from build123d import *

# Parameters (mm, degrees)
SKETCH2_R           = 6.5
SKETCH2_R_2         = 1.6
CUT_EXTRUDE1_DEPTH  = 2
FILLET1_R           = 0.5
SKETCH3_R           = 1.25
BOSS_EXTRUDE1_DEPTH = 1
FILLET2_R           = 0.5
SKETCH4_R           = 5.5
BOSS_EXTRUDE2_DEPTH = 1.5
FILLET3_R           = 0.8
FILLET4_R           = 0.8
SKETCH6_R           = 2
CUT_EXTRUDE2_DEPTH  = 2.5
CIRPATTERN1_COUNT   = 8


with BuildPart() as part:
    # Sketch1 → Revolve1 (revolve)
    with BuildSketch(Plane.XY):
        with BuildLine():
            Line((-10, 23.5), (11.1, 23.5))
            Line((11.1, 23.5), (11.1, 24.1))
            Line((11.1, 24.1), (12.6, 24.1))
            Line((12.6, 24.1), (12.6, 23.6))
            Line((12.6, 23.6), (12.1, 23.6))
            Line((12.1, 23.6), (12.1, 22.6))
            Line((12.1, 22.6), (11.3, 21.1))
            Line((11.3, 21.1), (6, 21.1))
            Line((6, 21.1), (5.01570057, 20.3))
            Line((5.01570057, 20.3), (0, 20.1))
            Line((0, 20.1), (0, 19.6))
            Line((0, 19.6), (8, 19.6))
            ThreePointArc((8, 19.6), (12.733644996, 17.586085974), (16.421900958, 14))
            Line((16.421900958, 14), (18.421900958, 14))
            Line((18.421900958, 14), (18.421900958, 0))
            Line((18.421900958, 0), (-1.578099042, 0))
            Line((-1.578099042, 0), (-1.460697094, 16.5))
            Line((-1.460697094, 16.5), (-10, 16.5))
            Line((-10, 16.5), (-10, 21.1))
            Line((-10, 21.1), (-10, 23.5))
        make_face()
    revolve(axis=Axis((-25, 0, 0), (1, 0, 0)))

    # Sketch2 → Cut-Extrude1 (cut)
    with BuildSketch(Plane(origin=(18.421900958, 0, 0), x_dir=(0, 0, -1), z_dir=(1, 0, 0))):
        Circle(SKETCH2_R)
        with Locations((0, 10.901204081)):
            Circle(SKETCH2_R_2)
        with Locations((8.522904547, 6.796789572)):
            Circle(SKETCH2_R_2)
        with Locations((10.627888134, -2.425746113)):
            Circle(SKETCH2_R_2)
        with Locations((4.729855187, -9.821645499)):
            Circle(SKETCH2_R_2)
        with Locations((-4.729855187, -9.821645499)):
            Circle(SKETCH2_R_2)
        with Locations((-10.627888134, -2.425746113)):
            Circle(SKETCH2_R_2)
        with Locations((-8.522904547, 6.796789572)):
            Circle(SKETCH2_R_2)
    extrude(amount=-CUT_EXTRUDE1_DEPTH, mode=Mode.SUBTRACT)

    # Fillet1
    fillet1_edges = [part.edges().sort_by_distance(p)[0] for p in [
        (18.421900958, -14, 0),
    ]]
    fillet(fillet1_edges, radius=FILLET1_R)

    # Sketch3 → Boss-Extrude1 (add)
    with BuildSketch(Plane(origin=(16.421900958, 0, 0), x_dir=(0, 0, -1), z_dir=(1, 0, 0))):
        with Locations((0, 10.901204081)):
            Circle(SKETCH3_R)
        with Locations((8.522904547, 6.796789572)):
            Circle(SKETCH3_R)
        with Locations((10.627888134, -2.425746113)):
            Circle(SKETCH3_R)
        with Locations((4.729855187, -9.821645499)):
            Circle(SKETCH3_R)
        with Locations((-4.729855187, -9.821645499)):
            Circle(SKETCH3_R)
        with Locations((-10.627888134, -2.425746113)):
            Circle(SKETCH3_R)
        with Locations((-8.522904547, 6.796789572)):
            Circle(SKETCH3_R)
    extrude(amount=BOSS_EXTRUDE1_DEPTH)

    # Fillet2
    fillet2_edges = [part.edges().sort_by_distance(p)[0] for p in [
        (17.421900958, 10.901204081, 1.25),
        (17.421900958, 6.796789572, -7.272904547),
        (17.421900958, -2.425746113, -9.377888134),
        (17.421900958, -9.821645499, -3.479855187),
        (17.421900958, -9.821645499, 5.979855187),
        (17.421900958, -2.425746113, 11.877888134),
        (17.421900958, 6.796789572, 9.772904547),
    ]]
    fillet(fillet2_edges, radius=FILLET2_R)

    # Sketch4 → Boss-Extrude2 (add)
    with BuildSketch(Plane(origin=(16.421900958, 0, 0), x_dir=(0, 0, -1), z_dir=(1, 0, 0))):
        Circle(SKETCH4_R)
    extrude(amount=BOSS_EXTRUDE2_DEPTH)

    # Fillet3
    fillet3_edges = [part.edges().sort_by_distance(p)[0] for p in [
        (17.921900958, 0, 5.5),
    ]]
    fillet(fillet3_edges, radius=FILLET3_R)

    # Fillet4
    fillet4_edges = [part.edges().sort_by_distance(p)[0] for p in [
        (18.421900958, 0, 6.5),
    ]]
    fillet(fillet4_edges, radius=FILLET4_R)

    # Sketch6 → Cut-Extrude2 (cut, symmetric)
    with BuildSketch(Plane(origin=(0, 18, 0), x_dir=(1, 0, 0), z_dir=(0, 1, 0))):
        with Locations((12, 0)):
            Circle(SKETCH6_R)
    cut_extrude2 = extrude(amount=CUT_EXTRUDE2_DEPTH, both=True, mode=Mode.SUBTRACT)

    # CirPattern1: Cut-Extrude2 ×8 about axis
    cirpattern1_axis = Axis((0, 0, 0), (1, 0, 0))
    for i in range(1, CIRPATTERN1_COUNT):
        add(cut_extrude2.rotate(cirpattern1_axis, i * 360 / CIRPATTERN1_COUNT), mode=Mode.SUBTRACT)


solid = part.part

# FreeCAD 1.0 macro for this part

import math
import FreeCAD as App
import Part
import Sketcher

V = App.Vector


def edges_at(feature, points):
    """Names of the edges that pass closest to the given points."""
    edges = feature.Shape.Edges
    near = lambda p: min(range(len(edges)), key=lambda i: edges[i].distToShape(Part.Vertex(*p))[0])
    return sorted({f"Edge{near(p) + 1}" for p in points})

doc = App.newDocument("Part")
params = doc.addObject("Spreadsheet::Sheet", "Params")
for row, (alias, value) in enumerate([
    ("sketch1_width", "20 mm"),
    ("sketch1_width2", "2 mm"),
    ("sketch1_width3", "8 mm"),
    ("sketch1_height", "7 mm"),
    ("sketch1_height2", "14 mm"),
    ("revolution_angle", "360 deg"),
    ("sketch2_diameter", "13 mm"),
    ("sketch2_diameter2", "3.2 mm"),
    ("pocket1_length", "2 mm"),
    ("fillet_radius", "0.5 mm"),
    ("sketch3_diameter", "2.5 mm"),
    ("pad1_length", "1 mm"),
    ("fillet2_radius", "0.5 mm"),
    ("sketch4_diameter", "11 mm"),
    ("pad2_length", "1.5 mm"),
    ("fillet3_radius", "0.8 mm"),
    ("fillet4_radius", "0.8 mm"),
    ("sketch5_diameter", "4 mm"),
    ("pocket2_length", "5 mm"),
], start=1):
    params.set(f"A{row}", alias)
    params.set(f"B{row}", "=" + value)
    params.setAlias(f"B{row}", alias)

body = doc.addObject("PartDesign::Body", "Body")

sketch1 = body.newObject("Sketcher::SketchObject", "Sketch")
sketch1.AttachmentSupport = (doc.getObject("XY_Plane"), [""])
sketch1.MapMode = "FlatFace"
sketch1.addGeometry(Part.LineSegment(V(11.1, 23.5, 0), V(-10, 23.5, 0)), False)
sketch1.addGeometry(Part.LineSegment(V(-10, 23.5, 0), V(-10, 16.5, 0)), False)
sketch1.addGeometry(Part.LineSegment(V(-10, 16.5, 0), V(-1.460697, 16.5, 0)), False)
sketch1.addGeometry(Part.LineSegment(V(-1.460697, 16.5, 0), V(-1.578099, 0, 0)), False)
sketch1.addGeometry(Part.LineSegment(V(-1.578099, 0, 0), V(18.421901, 0, 0)), False)
sketch1.addGeometry(Part.LineSegment(V(18.421901, 0, 0), V(18.421901, 14, 0)), False)
sketch1.addGeometry(Part.LineSegment(V(18.421901, 14, 0), V(16.421901, 14, 0)), False)
sketch1.addGeometry(Part.ArcOfCircle(Part.Circle(V(4.972697, 5.914312, 0), V(0, 0, 1), 14.016512), math.radians(35.230607), math.radians(77.526903)), False)
sketch1.addGeometry(Part.LineSegment(V(8, 19.6, 0), V(0, 19.6, 0)), False)
sketch1.addGeometry(Part.LineSegment(V(0, 19.6, 0), V(0, 20.1, 0)), False)
sketch1.addGeometry(Part.LineSegment(V(0, 20.1, 0), V(5.015701, 20.3, 0)), False)
sketch1.addGeometry(Part.LineSegment(V(5.015701, 20.3, 0), V(6, 21.1, 0)), False)
sketch1.addGeometry(Part.LineSegment(V(6, 21.1, 0), V(11.3, 21.1, 0)), False)
sketch1.addGeometry(Part.LineSegment(V(11.3, 21.1, 0), V(12.1, 22.6, 0)), False)
sketch1.addGeometry(Part.LineSegment(V(12.1, 22.6, 0), V(12.1, 23.6, 0)), False)
sketch1.addGeometry(Part.LineSegment(V(12.1, 23.6, 0), V(12.6, 23.6, 0)), False)
sketch1.addGeometry(Part.LineSegment(V(12.6, 23.6, 0), V(12.6, 24.1, 0)), False)
sketch1.addGeometry(Part.LineSegment(V(12.6, 24.1, 0), V(11.1, 24.1, 0)), False)
sketch1.addGeometry(Part.LineSegment(V(11.1, 24.1, 0), V(11.1, 23.5, 0)), False)
sketch1.addConstraint(Sketcher.Constraint("Coincident", 0, 2, 1, 1))
sketch1.addConstraint(Sketcher.Constraint("Coincident", 1, 2, 2, 1))
sketch1.addConstraint(Sketcher.Constraint("Coincident", 2, 2, 3, 1))
sketch1.addConstraint(Sketcher.Constraint("Coincident", 3, 2, 4, 1))
sketch1.addConstraint(Sketcher.Constraint("Coincident", 4, 2, 5, 1))
sketch1.addConstraint(Sketcher.Constraint("Coincident", 5, 2, 6, 1))
sketch1.addConstraint(Sketcher.Constraint("Coincident", 6, 2, 7, 1))
sketch1.addConstraint(Sketcher.Constraint("Coincident", 7, 2, 8, 1))
sketch1.addConstraint(Sketcher.Constraint("Coincident", 8, 2, 9, 1))
sketch1.addConstraint(Sketcher.Constraint("Coincident", 9, 2, 10, 1))
sketch1.addConstraint(Sketcher.Constraint("Coincident", 10, 2, 11, 1))
sketch1.addConstraint(Sketcher.Constraint("Coincident", 11, 2, 12, 1))
sketch1.addConstraint(Sketcher.Constraint("Coincident", 12, 2, 13, 1))
sketch1.addConstraint(Sketcher.Constraint("Coincident", 13, 2, 14, 1))
sketch1.addConstraint(Sketcher.Constraint("Coincident", 14, 2, 15, 1))
sketch1.addConstraint(Sketcher.Constraint("Coincident", 15, 2, 16, 1))
sketch1.addConstraint(Sketcher.Constraint("Coincident", 16, 2, 17, 1))
sketch1.addConstraint(Sketcher.Constraint("Coincident", 17, 2, 18, 1))
sketch1.addConstraint(Sketcher.Constraint("Coincident", 18, 2, 0, 1))
sketch1.addConstraint(Sketcher.Constraint("Horizontal", 0))
sketch1.addConstraint(Sketcher.Constraint("Vertical", 1))
sketch1.addConstraint(Sketcher.Constraint("Horizontal", 2))
sketch1.addConstraint(Sketcher.Constraint("Horizontal", 4))
sketch1.addConstraint(Sketcher.Constraint("Vertical", 5))
sketch1.addConstraint(Sketcher.Constraint("Horizontal", 6))
sketch1.addConstraint(Sketcher.Constraint("Horizontal", 8))
sketch1.addConstraint(Sketcher.Constraint("Vertical", 9))
sketch1.addConstraint(Sketcher.Constraint("Horizontal", 12))
sketch1.addConstraint(Sketcher.Constraint("Vertical", 14))
sketch1.addConstraint(Sketcher.Constraint("Horizontal", 15))
sketch1.addConstraint(Sketcher.Constraint("Vertical", 16))
sketch1.addConstraint(Sketcher.Constraint("Horizontal", 17))
sketch1.addConstraint(Sketcher.Constraint("Vertical", 18))
sketch1.addConstraint(Sketcher.Constraint("PointOnObject", 3, 2, -1))
sketch1.addConstraint(Sketcher.Constraint("PointOnObject", 8, 2, -2))
sketch1.addConstraint(Sketcher.Constraint("Equal", 15, 9))
sketch1.addConstraint(Sketcher.Constraint("Equal", 9, 16))
sketch1.addConstraint(Sketcher.Constraint("DistanceX", 4, 1, 4, 2, 20.0))
sketch1.addConstraint(Sketcher.Constraint("DistanceX", 6, 2, 6, 1, 2.0))
sketch1.addConstraint(Sketcher.Constraint("DistanceX", 8, 2, 8, 1, 8.0))
sketch1.addConstraint(Sketcher.Constraint("DistanceY", 1, 2, 1, 1, 7.0))
sketch1.addConstraint(Sketcher.Constraint("DistanceY", 5, 1, 5, 2, 14.0))
sketch1.addConstraint(Sketcher.Constraint("DistanceY", 14, 1, 14, 2, 1.0))
sketch1.addConstraint(Sketcher.Constraint("DistanceX", 0, 2, 0, 1, 21.1))
sketch1.addConstraint(Sketcher.Constraint("DistanceX", 12, 1, 12, 2, 5.3))
sketch1.addConstraint(Sketcher.Constraint("DistanceX", 15, 1, 15, 2, 0.5))
sketch1.addConstraint(Sketcher.Constraint("DistanceX", 17, 2, 17, 1, 1.5))
sketch1.addConstraint(Sketcher.Constraint("DistanceY", 18, 2, 18, 1, 0.6))
sketch1.addConstraint(Sketcher.Constraint("DistanceX", 0, 2, -1, 1, 10.0))
sketch1.addConstraint(Sketcher.Constraint("DistanceX", -1, 1, 11, 2, 6.0))
sketch1.addConstraint(Sketcher.Constraint("DistanceY", 9, 2, 11, 2, 1.0))
sketch1.addConstraint(Sketcher.Constraint("DistanceY", 7, 2, 13, 2, 3.0))
sketch1.addConstraint(Sketcher.Constraint("DistanceY", -1, 1, 0, 2, 23.5))
sketch1.addConstraint(Sketcher.Constraint("DistanceY", -1, 1, 10, 2, 20.3))
sketch1.addConstraint(Sketcher.Constraint("Radius", 7, 14.016512))
sketch1.addConstraint(Sketcher.Constraint("DistanceX", 3, 2, -1, 1, 1.578099))
sketch1.addConstraint(Sketcher.Constraint("DistanceX", -1, 1, 10, 2, 5.015701))
sketch1.addConstraint(Sketcher.Constraint("DistanceX", 3, 2, 2, 2, 0.117402))
sketch1.setExpression("Constraints[37]", "Params.sketch1_width")
sketch1.setExpression("Constraints[38]", "Params.sketch1_width2")
sketch1.setExpression("Constraints[39]", "Params.sketch1_width3")
sketch1.setExpression("Constraints[40]", "Params.sketch1_height")
sketch1.setExpression("Constraints[41]", "Params.sketch1_height2")
revolution = body.newObject("PartDesign::Revolution", "Revolution")
revolution.Profile = sketch1
revolution.ReferenceAxis = (sketch1, ["H_Axis"])
revolution.setExpression("Angle", "Params.revolution_angle")

sketch2 = body.newObject("Sketcher::SketchObject", "Sketch001")
sketch2.AttachmentSupport = (doc.getObject("YZ_Plane"), [""])
sketch2.MapMode = "FlatFace"
sketch2.AttachmentOffset = App.Placement(V(0, 0, 18.421901), App.Rotation())
sketch2.addGeometry(Part.Circle(V(0, 0, 0), V(0, 0, 1), 6.5), False)
sketch2.addGeometry(Part.Circle(V(10.901204, 0, 0), V(0, 0, 1), 1.6), False)
sketch2.addGeometry(Part.Circle(V(6.79679, -8.522905, 0), V(0, 0, 1), 1.6), False)
sketch2.addGeometry(Part.Circle(V(-2.425746, -10.627888, 0), V(0, 0, 1), 1.6), False)
sketch2.addGeometry(Part.Circle(V(-9.821645, -4.729855, 0), V(0, 0, 1), 1.6), False)
sketch2.addGeometry(Part.Circle(V(-9.821645, 4.729855, 0), V(0, 0, 1), 1.6), False)
sketch2.addGeometry(Part.Circle(V(-2.425746, 10.627888, 0), V(0, 0, 1), 1.6), False)
sketch2.addGeometry(Part.Circle(V(6.79679, 8.522905, 0), V(0, 0, 1), 1.6), False)
sketch2.addConstraint(Sketcher.Constraint("Coincident", 0, 3, -1, 1))
sketch2.addConstraint(Sketcher.Constraint("Equal", 1, 2))
sketch2.addConstraint(Sketcher.Constraint("Equal", 2, 3))
sketch2.addConstraint(Sketcher.Constraint("Equal", 3, 4))
sketch2.addConstraint(Sketcher.Constraint("Equal", 4, 5))
sketch2.addConstraint(Sketcher.Constraint("Equal", 5, 6))
sketch2.addConstraint(Sketcher.Constraint("Equal", 6, 7))
sketch2.addConstraint(Sketcher.Constraint("Symmetric", 4, 3, 5, 3, -1))
sketch2.addConstraint(Sketcher.Constraint("Symmetric", 3, 3, 6, 3, -1))
sketch2.addConstraint(Sketcher.Constraint("Symmetric", 2, 3, 7, 3, -1))
sketch2.addConstraint(Sketcher.Constraint("PointOnObject", 1, 3, -1))
sketch2.addConstraint(Sketcher.Constraint("Diameter", 0, 13.0))
sketch2.addConstraint(Sketcher.Constraint("Diameter", 1, 3.2))
sketch2.addConstraint(Sketcher.Constraint("DistanceX", 4, 3, 3, 3, 7.395899))
sketch2.addConstraint(Sketcher.Constraint("DistanceX", -1, 1, 2, 3, 6.79679))
sketch2.addConstraint(Sketcher.Constraint("DistanceY", 3, 3, -1, 1, 10.627888))
sketch2.addConstraint(Sketcher.Constraint("DistanceX", 3, 3, 1, 3, 13.32695))
sketch2.addConstraint(Sketcher.Constraint("DistanceY", 2, 3, 4, 3, 3.793049))
sketch2.addConstraint(Sketcher.Constraint("DistanceY", 4, 3, 5, 3, 9.45971))
sketch2.addConstraint(Sketcher.Constraint("DistanceX", -1, 1, 1, 3, 10.901204))
sketch2.setExpression("Constraints[11]", "Params.sketch2_diameter")
sketch2.setExpression("Constraints[12]", "Params.sketch2_diameter2")
pocket1 = body.newObject("PartDesign::Pocket", "Pocket")
pocket1.Profile = sketch2
pocket1.setExpression("Length", "Params.pocket1_length")
doc.recompute()

fillet = body.newObject("PartDesign::Fillet", "Fillet")
fillet.Base = (pocket1, edges_at(pocket1, [(18.422, -14, 0)]))
fillet.setExpression("Radius", "Params.fillet_radius")

sketch3 = body.newObject("Sketcher::SketchObject", "Sketch002")
sketch3.AttachmentSupport = (doc.getObject("YZ_Plane"), [""])
sketch3.MapMode = "FlatFace"
sketch3.AttachmentOffset = App.Placement(V(0, 0, 16.421901), App.Rotation())
sketch3.addGeometry(Part.Circle(V(10.901204, 0, 0), V(0, 0, 1), 1.25), False)
sketch3.addGeometry(Part.Circle(V(6.79679, -8.522905, 0), V(0, 0, 1), 1.25), False)
sketch3.addGeometry(Part.Circle(V(-2.425746, -10.627888, 0), V(0, 0, 1), 1.25), False)
sketch3.addGeometry(Part.Circle(V(-9.821645, -4.729855, 0), V(0, 0, 1), 1.25), False)
sketch3.addGeometry(Part.Circle(V(-9.821645, 4.729855, 0), V(0, 0, 1), 1.25), False)
sketch3.addGeometry(Part.Circle(V(-2.425746, 10.627888, 0), V(0, 0, 1), 1.25), False)
sketch3.addGeometry(Part.Circle(V(6.79679, 8.522905, 0), V(0, 0, 1), 1.25), False)
sketch3.addConstraint(Sketcher.Constraint("Equal", 0, 1))
sketch3.addConstraint(Sketcher.Constraint("Equal", 1, 2))
sketch3.addConstraint(Sketcher.Constraint("Equal", 2, 3))
sketch3.addConstraint(Sketcher.Constraint("Equal", 3, 4))
sketch3.addConstraint(Sketcher.Constraint("Equal", 4, 5))
sketch3.addConstraint(Sketcher.Constraint("Equal", 5, 6))
sketch3.addConstraint(Sketcher.Constraint("Symmetric", 3, 3, 4, 3, -1))
sketch3.addConstraint(Sketcher.Constraint("Symmetric", 2, 3, 5, 3, -1))
sketch3.addConstraint(Sketcher.Constraint("Symmetric", 1, 3, 6, 3, -1))
sketch3.addConstraint(Sketcher.Constraint("PointOnObject", 0, 3, -1))
sketch3.addConstraint(Sketcher.Constraint("Diameter", 0, 2.5))
sketch3.addConstraint(Sketcher.Constraint("DistanceX", 3, 3, 2, 3, 7.395899))
sketch3.addConstraint(Sketcher.Constraint("DistanceX", -1, 1, 1, 3, 6.79679))
sketch3.addConstraint(Sketcher.Constraint("DistanceY", 2, 3, -1, 1, 10.627888))
sketch3.addConstraint(Sketcher.Constraint("DistanceX", 2, 3, 0, 3, 13.32695))
sketch3.addConstraint(Sketcher.Constraint("DistanceY", 1, 3, 3, 3, 3.793049))
sketch3.addConstraint(Sketcher.Constraint("DistanceY", 3, 3, 4, 3, 9.45971))
sketch3.addConstraint(Sketcher.Constraint("DistanceX", -1, 1, 0, 3, 10.901204))
sketch3.setExpression("Constraints[10]", "Params.sketch3_diameter")
pad1 = body.newObject("PartDesign::Pad", "Pad")
pad1.Profile = sketch3
pad1.setExpression("Length", "Params.pad1_length")
doc.recompute()

fillet2 = body.newObject("PartDesign::Fillet", "Fillet001")
fillet2.Base = (pad1, edges_at(pad1, [
    (17.422, 10.901, 1.25),
    (17.422, 6.797, -7.273),
    (17.422, -2.426, -9.378),
    (17.422, -9.822, -3.48),
    (17.422, -9.822, 5.98),
    (17.422, -2.426, 11.878),
    (17.422, 6.797, 9.773),
]))
fillet2.setExpression("Radius", "Params.fillet2_radius")

sketch4 = body.newObject("Sketcher::SketchObject", "Sketch003")
sketch4.AttachmentSupport = (doc.getObject("YZ_Plane"), [""])
sketch4.MapMode = "FlatFace"
sketch4.AttachmentOffset = App.Placement(V(0, 0, 16.421901), App.Rotation())
sketch4.addGeometry(Part.Circle(V(0, 0, 0), V(0, 0, 1), 5.5), False)
sketch4.addConstraint(Sketcher.Constraint("Coincident", 0, 3, -1, 1))
sketch4.addConstraint(Sketcher.Constraint("Diameter", 0, 11.0))
sketch4.setExpression("Constraints[1]", "Params.sketch4_diameter")
pad2 = body.newObject("PartDesign::Pad", "Pad001")
pad2.Profile = sketch4
pad2.setExpression("Length", "Params.pad2_length")
doc.recompute()

fillet3 = body.newObject("PartDesign::Fillet", "Fillet002")
fillet3.Base = (pad2, edges_at(pad2, [(17.922, 0, 5.5)]))
fillet3.setExpression("Radius", "Params.fillet3_radius")
doc.recompute()

fillet4 = body.newObject("PartDesign::Fillet", "Fillet003")
fillet4.Base = (fillet3, edges_at(fillet3, [(18.422, 0, 6.5)]))
fillet4.setExpression("Radius", "Params.fillet4_radius")

sketch5 = body.newObject("Sketcher::SketchObject", "Sketch004")
sketch5.AttachmentSupport = (doc.getObject("XZ_Plane"), [""])
sketch5.MapMode = "FlatFace"
sketch5.AttachmentOffset = App.Placement(V(0, 0, -18), App.Rotation())
sketch5.addGeometry(Part.Circle(V(12, 0, 0), V(0, 0, 1), 2), False)
sketch5.addConstraint(Sketcher.Constraint("PointOnObject", 0, 3, -1))
sketch5.addConstraint(Sketcher.Constraint("Diameter", 0, 4.0))
sketch5.addConstraint(Sketcher.Constraint("DistanceX", -1, 1, 0, 3, 12.0))
sketch5.setExpression("Constraints[1]", "Params.sketch5_diameter")
pocket2 = body.newObject("PartDesign::Pocket", "Pocket001")
pocket2.Profile = sketch5
pocket2.setExpression("Length", "Params.pocket2_length")
pocket2.Midplane = True
doc.recompute()

polarpattern = body.newObject("PartDesign::PolarPattern", "PolarPattern")
polarpattern.Originals = [pocket2]
polarpattern.Axis = (doc.getObject("X_Axis"), [""])
polarpattern.Angle = 360
polarpattern.Occurrences = 8
body.Tip = polarpattern

doc.recompute()
